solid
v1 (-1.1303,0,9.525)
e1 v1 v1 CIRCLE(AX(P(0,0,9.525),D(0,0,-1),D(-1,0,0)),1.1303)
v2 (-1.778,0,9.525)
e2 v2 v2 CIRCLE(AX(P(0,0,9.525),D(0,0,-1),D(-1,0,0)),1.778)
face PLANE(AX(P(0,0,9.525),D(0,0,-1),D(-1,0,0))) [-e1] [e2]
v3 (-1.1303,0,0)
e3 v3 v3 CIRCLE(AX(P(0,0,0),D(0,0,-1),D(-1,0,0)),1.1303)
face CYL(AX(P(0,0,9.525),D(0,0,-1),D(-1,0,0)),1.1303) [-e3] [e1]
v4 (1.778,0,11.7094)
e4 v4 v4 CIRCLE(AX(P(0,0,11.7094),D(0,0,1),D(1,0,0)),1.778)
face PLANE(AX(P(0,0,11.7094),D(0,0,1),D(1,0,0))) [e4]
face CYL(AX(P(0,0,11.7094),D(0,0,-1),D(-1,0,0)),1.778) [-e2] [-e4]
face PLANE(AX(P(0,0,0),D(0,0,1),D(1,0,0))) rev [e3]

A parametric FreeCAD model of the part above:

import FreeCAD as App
import Part
import Sketcher
Q = App.Units.Quantity

doc = App.newDocument("Part")
body = doc.addObject("PartDesign::Body", "Body")

sketch1 = body.newObject("Sketcher::SketchObject", "Sketch")
sketch1.AttachmentSupport = (doc.getObject("XY_Plane"), [""])
sketch1.MapMode = "FlatFace"
sketch1.addGeometry(Part.Circle(App.Vector(0, 0, 0), App.Vector(0, 0, 1), 1.778), False)
sketch1.addConstraint([
    Sketcher.Constraint("Coincident", 0, 3, -1, 1),
    Sketcher.Constraint("Diameter", 0, Q("0.14 in")),
])
pad1 = body.newObject("PartDesign::Pad", "Pad")
pad1.Profile = sketch1
pad1.Length = Q("0.461 in")

sketch2 = body.newObject("Sketcher::SketchObject", "Sketch001")
sketch2.AttachmentSupport = (doc.getObject("XY_Plane"), [""])
sketch2.MapMode = "FlatFace"
sketch2.addGeometry([
    Part.LineSegment(App.Vector(4.052, 4.052, 0), App.Vector(4.052, -4.052, 0)),
    Part.LineSegment(App.Vector(4.052, -4.052, 0), App.Vector(-4.052, -4.052, 0)),
    Part.LineSegment(App.Vector(-4.052, -4.052, 0), App.Vector(-4.052, 4.052, 0)),
    Part.LineSegment(App.Vector(-4.052, 4.052, 0), App.Vector(4.052, 4.052, 0)),
    Part.Circle(App.Vector(0, 0, 0), App.Vector(0, 0, 1), 1.1303),
], False)
sketch2.addConstraint([
    Sketcher.Constraint("Coincident", 0, 2, 1, 1),
    Sketcher.Constraint("Coincident", 1, 2, 2, 1),
    Sketcher.Constraint("Coincident", 2, 2, 3, 1),
    Sketcher.Constraint("Coincident", 3, 2, 0, 1),
    Sketcher.Constraint("Vertical", 0),
    Sketcher.Constraint("Horizontal", 1),
    Sketcher.Constraint("Vertical", 2),
    Sketcher.Constraint("Horizontal", 3),
    Sketcher.Constraint("Coincident", 4, 3, -1, 1),
    Sketcher.Constraint("Symmetric", 0, 2, 2, 2, -1, 1),
    Sketcher.Constraint("Equal", 3, 0),
    Sketcher.Constraint("Diameter", 4, Q("0.089 in")),
    Sketcher.Constraint("DistanceX", 1, 2, 1, 1, Q("8.104 mm")),
])
pocket1 = body.newObject("PartDesign::Pocket", "Pocket")
pocket1.Profile = sketch2
pocket1.Length = Q("0.375 in")
pocket1.Reversed = True

doc.recompute()
